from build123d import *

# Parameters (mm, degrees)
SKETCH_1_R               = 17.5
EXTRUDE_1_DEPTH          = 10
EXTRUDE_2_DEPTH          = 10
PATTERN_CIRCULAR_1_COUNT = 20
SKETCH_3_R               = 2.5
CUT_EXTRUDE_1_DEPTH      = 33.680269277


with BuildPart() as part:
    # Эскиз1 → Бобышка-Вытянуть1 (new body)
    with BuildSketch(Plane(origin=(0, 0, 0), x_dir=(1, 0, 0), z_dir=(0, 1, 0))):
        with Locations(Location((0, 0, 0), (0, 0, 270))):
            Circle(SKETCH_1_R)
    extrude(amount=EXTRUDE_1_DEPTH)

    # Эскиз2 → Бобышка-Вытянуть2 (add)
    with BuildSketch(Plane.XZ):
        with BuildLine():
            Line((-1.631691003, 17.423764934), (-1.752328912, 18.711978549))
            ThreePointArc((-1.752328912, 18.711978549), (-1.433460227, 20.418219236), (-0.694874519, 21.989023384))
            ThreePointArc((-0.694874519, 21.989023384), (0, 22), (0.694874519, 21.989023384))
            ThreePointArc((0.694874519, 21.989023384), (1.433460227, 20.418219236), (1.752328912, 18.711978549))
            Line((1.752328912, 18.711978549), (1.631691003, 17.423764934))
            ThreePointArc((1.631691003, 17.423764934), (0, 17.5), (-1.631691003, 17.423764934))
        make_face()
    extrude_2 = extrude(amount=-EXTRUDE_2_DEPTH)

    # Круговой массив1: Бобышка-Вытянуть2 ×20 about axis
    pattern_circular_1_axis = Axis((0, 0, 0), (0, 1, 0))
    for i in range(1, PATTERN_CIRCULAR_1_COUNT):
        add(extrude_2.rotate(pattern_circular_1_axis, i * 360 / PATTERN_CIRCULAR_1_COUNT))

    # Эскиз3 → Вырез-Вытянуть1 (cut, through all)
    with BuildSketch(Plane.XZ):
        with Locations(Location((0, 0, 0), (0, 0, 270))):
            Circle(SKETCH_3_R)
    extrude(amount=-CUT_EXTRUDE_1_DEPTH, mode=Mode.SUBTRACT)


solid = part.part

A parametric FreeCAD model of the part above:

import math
import FreeCAD as App
import Part
import Sketcher

V = App.Vector
Q = App.Units.Quantity

doc = App.newDocument("Part")
params = doc.addObject("Spreadsheet::Sheet", "Params")
for row, (alias, value) in enumerate([
    ("sketch1_diameter", "35 mm"),
    ("pad1_length", "10 mm"),
    ("sketch2_radius", "21.999999 mm"),
    ("sketch2_radius2", "17.5 mm"),
    ("pad2_length", "10 mm"),
    ("sketch3_diameter", "5 mm"),
], start=1):
    params.set(f"A{row}", alias)
    params.set(f"B{row}", "=" + value)
    params.setAlias(f"B{row}", alias)

body = doc.addObject("PartDesign::Body", "Body")

# Sketch on XZ plane
sketch1 = body.newObject("Sketcher::SketchObject", "Sketch")
sketch1.AttachmentSupport = (doc.getObject("XZ_Plane"), [""])
sketch1.MapMode = "FlatFace"
sketch1.addGeometry(Part.Circle(V(0, 0, 0), V(0, 0, 1), 18), False)
sketch1.addConstraint(Sketcher.Constraint("Coincident", 0, 3, -1, 1))
sketch1.addConstraint(Sketcher.Constraint("Diameter", 0, 35.0))
sketch1.setExpression("Constraints[1]", "Params.sketch1_diameter")
pad1 = body.newObject("PartDesign::Pad", "Pad")
pad1.Profile = sketch1
pad1.setExpression("Length", "Params.pad1_length")
pad1.Reversed = True

# Sketch on XZ plane
sketch2 = body.newObject("Sketcher::SketchObject", "Sketch001")
sketch2.AttachmentSupport = (doc.getObject("XZ_Plane"), [""])
sketch2.MapMode = "FlatFace"
sketch2.addGeometry(Part.LineSegment(V(-1.8, 18.7, 0), V(-1.6, 17.4, 0)), False)
sketch2.addGeometry(Part.ArcOfCircle(Part.Circle(V(0, 0, 0), V(0, 0, 1), 17.5), math.radians(84.65), math.radians(95.35)), False)
sketch2.addGeometry(Part.LineSegment(V(1.6, 17.4, 0), V(1.8, 18.7, 0)), False)
sketch2.addGeometry(Part.ArcOfCircle(Part.Circle(V(-5.1, 18.3, 0), V(0, 0, 1), 6.8), math.radians(3), math.radians(32)), False)
sketch2.addGeometry(Part.ArcOfCircle(Part.Circle(V(0, 0, 0), V(0, 0, 1), 22), math.radians(88.19), math.radians(91.81)), False)
sketch2.addGeometry(Part.ArcOfCircle(Part.Circle(V(5.1, 18.3, 0), V(0, 0, 1), 6.8), math.radians(148), math.radians(177)), False)
sketch2.addConstraint(Sketcher.Constraint("Coincident", 0, 2, 1, 2))
sketch2.addConstraint(Sketcher.Constraint("Coincident", 1, 1, 2, 1))
sketch2.addConstraint(Sketcher.Constraint("Coincident", 2, 2, 3, 1))
sketch2.addConstraint(Sketcher.Constraint("Coincident", 3, 2, 4, 1))
sketch2.addConstraint(Sketcher.Constraint("Coincident", 4, 2, 5, 1))
sketch2.addConstraint(Sketcher.Constraint("Coincident", 5, 2, 0, 1))
sketch2.addConstraint(Sketcher.Constraint("Coincident", 1, 3, -1, 1))
sketch2.addConstraint(Sketcher.Constraint("Coincident", 4, 3, -1, 1))
sketch2.addConstraint(Sketcher.Constraint("Equal", 3, 5))
sketch2.addConstraint(Sketcher.Constraint("Symmetric", 3, 3, 5, 3, -2))
sketch2.addConstraint(Sketcher.Constraint("Horizontal", 0, 2, 1, 1))
sketch2.addConstraint(Sketcher.Constraint("Horizontal", 2, 2, 5, 2))
sketch2.addConstraint(Sketcher.Constraint("Radius", 4, 21.999999))
sketch2.addConstraint(Sketcher.Constraint("Radius", 1, 17.5))
sketch2.addConstraint(Sketcher.Constraint("Angle", 0, Q("-84.65 deg")))
sketch2.addConstraint(Sketcher.Constraint("Radius", 3, 6.831622))
sketch2.addConstraint(Sketcher.Constraint("Distance", 0, 1.29385))
sketch2.addConstraint(Sketcher.Constraint("DistanceX", 0, 2, -1, 1, 1.631691))
sketch2.addConstraint(Sketcher.Constraint("DistanceX", 3, 3, 5, 3, 10.136109))
sketch2.setExpression("Constraints[12]", "Params.sketch2_radius")
sketch2.setExpression("Constraints[13]", "Params.sketch2_radius2")
pad2 = body.newObject("PartDesign::Pad", "Pad001")
pad2.Profile = sketch2
pad2.setExpression("Length", "Params.pad2_length")
pad2.Reversed = True
doc.recompute()

polarpattern = body.newObject("PartDesign::PolarPattern", "PolarPattern")
polarpattern.Originals = [pad2]
polarpattern.Axis = (doc.getObject("Y_Axis"), [""])
polarpattern.Angle = 360
polarpattern.Occurrences = 20
body.Tip = polarpattern

# Sketch on XZ plane
sketch3 = body.newObject("Sketcher::SketchObject", "Sketch002")
sketch3.AttachmentSupport = (doc.getObject("XZ_Plane"), [""])
sketch3.MapMode = "FlatFace"
sketch3.addGeometry(Part.Circle(V(0, 0, 0), V(0, 0, 1), 2.5), False)
sketch3.addConstraint(Sketcher.Constraint("Coincident", 0, 3, -1, 1))
sketch3.addConstraint(Sketcher.Constraint("Diameter", 0, 5.0))
sketch3.setExpression("Constraints[1]", "Params.sketch3_diameter")
pocket1 = body.newObject("PartDesign::Pocket", "Pocket")
pocket1.Profile = sketch3
pocket1.Type = "ThroughAll"

doc.recompute()
